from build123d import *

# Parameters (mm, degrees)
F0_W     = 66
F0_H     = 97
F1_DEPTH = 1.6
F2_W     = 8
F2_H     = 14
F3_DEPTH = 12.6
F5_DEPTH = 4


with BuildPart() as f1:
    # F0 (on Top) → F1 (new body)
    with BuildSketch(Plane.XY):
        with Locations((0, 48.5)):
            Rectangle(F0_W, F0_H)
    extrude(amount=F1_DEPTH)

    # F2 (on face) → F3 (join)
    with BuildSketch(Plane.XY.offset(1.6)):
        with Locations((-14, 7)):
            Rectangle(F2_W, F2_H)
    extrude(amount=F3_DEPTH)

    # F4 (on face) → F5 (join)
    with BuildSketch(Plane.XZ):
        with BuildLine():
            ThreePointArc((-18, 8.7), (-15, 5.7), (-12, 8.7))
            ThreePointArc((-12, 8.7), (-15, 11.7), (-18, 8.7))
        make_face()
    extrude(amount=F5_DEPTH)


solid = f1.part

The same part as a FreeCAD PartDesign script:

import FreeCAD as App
import Part
import Sketcher
from FreeCAD import Vector
Q = App.Units.Quantity


def add_polygon(sketch, points):
    """Adds a closed chain of lines whose ends are joined by coincident constraints."""
    first, n = sketch.GeometryCount, len(points)
    for a, b in zip(points, points[1:] + points[:1]):
        sketch.addGeometry(Part.LineSegment(App.Vector(*a, 0), App.Vector(*b, 0)), False)
    for i in range(n):
        sketch.addConstraint(Sketcher.Constraint("Coincident", first + i, 2, first + (i + 1) % n, 1))

doc = App.newDocument("Part")
params = doc.addObject("Spreadsheet::Sheet", "Params")
for row, (alias, value) in enumerate([
    ("sketch1_width", "66 mm"),
    ("sketch1_height", "97 mm"),
    ("pad1_length", "1.6 mm"),
    ("sketch2_width", "8 mm"),
    ("sketch2_height", "14 mm"),
    ("pad2_length", "12.6 mm"),
    ("sketch3_diameter", "6 mm"),
    ("pad3_length", "4 mm"),
], start=1):
    params.set(f"A{row}", alias)
    params.set(f"B{row}", "=" + value)
    params.setAlias(f"B{row}", alias)

body = doc.addObject("PartDesign::Body", "Body")

sketch1 = doc.addObject("Sketcher::SketchObject", "Sketch")
body.addObject(sketch1)
sketch1.AttachmentSupport = (doc.XY_Plane, [""])
sketch1.MapMode = "FlatFace"
add_polygon(sketch1, [(-33, 97), (-33, 0), (33, 0), (33, 97)])
sketch1.addConstraint(Sketcher.Constraint("Vertical", 0))
sketch1.addConstraint(Sketcher.Constraint("Horizontal", 1))
sketch1.addConstraint(Sketcher.Constraint("Vertical", 2))
sketch1.addConstraint(Sketcher.Constraint("Horizontal", 3))
sketch1.addConstraint(Sketcher.Constraint("Symmetric", 0, 2, 1, 2, -1, 1))
sketch1.addConstraint(Sketcher.Constraint("DistanceX", 1, 1, 1, 2, Q("66 mm")))
sketch1.addConstraint(Sketcher.Constraint("DistanceY", 0, 2, 0, 1, Q("97 mm")))
sketch1.setExpression("Constraints[9]", "Params.sketch1_width")
sketch1.setExpression("Constraints[10]", "Params.sketch1_height")
pad1 = doc.addObject("PartDesign::Pad", "Pad")
body.addObject(pad1)
pad1.Profile = sketch1
pad1.setExpression("Length", "Params.pad1_length")

sketch2 = doc.addObject("Sketcher::SketchObject", "Sketch001")
body.addObject(sketch2)
sketch2.AttachmentSupport = (doc.XY_Plane, [""])
sketch2.MapMode = "FlatFace"
sketch2.AttachmentOffset = App.Placement(Vector(0, 0, 1.6), App.Rotation())
add_polygon(sketch2, [(-18, 14), (-18, 0), (-10, 0), (-10, 14)])
sketch2.addConstraint(Sketcher.Constraint("Vertical", 0))
sketch2.addConstraint(Sketcher.Constraint("Horizontal", 1))
sketch2.addConstraint(Sketcher.Constraint("Vertical", 2))
sketch2.addConstraint(Sketcher.Constraint("Horizontal", 3))
sketch2.addConstraint(Sketcher.Constraint("PointOnObject", 0, 2, -1))
sketch2.addConstraint(Sketcher.Constraint("DistanceX", 1, 1, 1, 2, Q("8 mm")))
sketch2.addConstraint(Sketcher.Constraint("DistanceY", 0, 2, 0, 1, Q("14 mm")))
sketch2.addConstraint(Sketcher.Constraint("DistanceX", 0, 2, -1, 1, Q("18 mm")))
sketch2.setExpression("Constraints[9]", "Params.sketch2_width")
sketch2.setExpression("Constraints[10]", "Params.sketch2_height")
pad2 = doc.addObject("PartDesign::Pad", "Pad001")
body.addObject(pad2)
pad2.Profile = sketch2
pad2.setExpression("Length", "Params.pad2_length")

sketch3 = doc.addObject("Sketcher::SketchObject", "Sketch002")
body.addObject(sketch3)
sketch3.AttachmentSupport = (doc.XZ_Plane, [""])
sketch3.MapMode = "FlatFace"
sketch3.addGeometry(Part.Circle(Vector(-15, 8.7, 0), Vector(0, 0, 1), 3), False)
sketch3.addConstraint(Sketcher.Constraint("Diameter", 0, Q("6 mm")))
sketch3.addConstraint(Sketcher.Constraint("DistanceX", 0, 3, -1, 1, Q("15 mm")))
sketch3.addConstraint(Sketcher.Constraint("DistanceY", -1, 1, 0, 3, Q("8.7 mm")))
sketch3.setExpression("Constraints[0]", "Params.sketch3_diameter")
pad3 = doc.addObject("PartDesign::Pad", "Pad002")
body.addObject(pad3)
pad3.Profile = sketch3
pad3.setExpression("Length", "Params.pad3_length")

doc.recompute()
